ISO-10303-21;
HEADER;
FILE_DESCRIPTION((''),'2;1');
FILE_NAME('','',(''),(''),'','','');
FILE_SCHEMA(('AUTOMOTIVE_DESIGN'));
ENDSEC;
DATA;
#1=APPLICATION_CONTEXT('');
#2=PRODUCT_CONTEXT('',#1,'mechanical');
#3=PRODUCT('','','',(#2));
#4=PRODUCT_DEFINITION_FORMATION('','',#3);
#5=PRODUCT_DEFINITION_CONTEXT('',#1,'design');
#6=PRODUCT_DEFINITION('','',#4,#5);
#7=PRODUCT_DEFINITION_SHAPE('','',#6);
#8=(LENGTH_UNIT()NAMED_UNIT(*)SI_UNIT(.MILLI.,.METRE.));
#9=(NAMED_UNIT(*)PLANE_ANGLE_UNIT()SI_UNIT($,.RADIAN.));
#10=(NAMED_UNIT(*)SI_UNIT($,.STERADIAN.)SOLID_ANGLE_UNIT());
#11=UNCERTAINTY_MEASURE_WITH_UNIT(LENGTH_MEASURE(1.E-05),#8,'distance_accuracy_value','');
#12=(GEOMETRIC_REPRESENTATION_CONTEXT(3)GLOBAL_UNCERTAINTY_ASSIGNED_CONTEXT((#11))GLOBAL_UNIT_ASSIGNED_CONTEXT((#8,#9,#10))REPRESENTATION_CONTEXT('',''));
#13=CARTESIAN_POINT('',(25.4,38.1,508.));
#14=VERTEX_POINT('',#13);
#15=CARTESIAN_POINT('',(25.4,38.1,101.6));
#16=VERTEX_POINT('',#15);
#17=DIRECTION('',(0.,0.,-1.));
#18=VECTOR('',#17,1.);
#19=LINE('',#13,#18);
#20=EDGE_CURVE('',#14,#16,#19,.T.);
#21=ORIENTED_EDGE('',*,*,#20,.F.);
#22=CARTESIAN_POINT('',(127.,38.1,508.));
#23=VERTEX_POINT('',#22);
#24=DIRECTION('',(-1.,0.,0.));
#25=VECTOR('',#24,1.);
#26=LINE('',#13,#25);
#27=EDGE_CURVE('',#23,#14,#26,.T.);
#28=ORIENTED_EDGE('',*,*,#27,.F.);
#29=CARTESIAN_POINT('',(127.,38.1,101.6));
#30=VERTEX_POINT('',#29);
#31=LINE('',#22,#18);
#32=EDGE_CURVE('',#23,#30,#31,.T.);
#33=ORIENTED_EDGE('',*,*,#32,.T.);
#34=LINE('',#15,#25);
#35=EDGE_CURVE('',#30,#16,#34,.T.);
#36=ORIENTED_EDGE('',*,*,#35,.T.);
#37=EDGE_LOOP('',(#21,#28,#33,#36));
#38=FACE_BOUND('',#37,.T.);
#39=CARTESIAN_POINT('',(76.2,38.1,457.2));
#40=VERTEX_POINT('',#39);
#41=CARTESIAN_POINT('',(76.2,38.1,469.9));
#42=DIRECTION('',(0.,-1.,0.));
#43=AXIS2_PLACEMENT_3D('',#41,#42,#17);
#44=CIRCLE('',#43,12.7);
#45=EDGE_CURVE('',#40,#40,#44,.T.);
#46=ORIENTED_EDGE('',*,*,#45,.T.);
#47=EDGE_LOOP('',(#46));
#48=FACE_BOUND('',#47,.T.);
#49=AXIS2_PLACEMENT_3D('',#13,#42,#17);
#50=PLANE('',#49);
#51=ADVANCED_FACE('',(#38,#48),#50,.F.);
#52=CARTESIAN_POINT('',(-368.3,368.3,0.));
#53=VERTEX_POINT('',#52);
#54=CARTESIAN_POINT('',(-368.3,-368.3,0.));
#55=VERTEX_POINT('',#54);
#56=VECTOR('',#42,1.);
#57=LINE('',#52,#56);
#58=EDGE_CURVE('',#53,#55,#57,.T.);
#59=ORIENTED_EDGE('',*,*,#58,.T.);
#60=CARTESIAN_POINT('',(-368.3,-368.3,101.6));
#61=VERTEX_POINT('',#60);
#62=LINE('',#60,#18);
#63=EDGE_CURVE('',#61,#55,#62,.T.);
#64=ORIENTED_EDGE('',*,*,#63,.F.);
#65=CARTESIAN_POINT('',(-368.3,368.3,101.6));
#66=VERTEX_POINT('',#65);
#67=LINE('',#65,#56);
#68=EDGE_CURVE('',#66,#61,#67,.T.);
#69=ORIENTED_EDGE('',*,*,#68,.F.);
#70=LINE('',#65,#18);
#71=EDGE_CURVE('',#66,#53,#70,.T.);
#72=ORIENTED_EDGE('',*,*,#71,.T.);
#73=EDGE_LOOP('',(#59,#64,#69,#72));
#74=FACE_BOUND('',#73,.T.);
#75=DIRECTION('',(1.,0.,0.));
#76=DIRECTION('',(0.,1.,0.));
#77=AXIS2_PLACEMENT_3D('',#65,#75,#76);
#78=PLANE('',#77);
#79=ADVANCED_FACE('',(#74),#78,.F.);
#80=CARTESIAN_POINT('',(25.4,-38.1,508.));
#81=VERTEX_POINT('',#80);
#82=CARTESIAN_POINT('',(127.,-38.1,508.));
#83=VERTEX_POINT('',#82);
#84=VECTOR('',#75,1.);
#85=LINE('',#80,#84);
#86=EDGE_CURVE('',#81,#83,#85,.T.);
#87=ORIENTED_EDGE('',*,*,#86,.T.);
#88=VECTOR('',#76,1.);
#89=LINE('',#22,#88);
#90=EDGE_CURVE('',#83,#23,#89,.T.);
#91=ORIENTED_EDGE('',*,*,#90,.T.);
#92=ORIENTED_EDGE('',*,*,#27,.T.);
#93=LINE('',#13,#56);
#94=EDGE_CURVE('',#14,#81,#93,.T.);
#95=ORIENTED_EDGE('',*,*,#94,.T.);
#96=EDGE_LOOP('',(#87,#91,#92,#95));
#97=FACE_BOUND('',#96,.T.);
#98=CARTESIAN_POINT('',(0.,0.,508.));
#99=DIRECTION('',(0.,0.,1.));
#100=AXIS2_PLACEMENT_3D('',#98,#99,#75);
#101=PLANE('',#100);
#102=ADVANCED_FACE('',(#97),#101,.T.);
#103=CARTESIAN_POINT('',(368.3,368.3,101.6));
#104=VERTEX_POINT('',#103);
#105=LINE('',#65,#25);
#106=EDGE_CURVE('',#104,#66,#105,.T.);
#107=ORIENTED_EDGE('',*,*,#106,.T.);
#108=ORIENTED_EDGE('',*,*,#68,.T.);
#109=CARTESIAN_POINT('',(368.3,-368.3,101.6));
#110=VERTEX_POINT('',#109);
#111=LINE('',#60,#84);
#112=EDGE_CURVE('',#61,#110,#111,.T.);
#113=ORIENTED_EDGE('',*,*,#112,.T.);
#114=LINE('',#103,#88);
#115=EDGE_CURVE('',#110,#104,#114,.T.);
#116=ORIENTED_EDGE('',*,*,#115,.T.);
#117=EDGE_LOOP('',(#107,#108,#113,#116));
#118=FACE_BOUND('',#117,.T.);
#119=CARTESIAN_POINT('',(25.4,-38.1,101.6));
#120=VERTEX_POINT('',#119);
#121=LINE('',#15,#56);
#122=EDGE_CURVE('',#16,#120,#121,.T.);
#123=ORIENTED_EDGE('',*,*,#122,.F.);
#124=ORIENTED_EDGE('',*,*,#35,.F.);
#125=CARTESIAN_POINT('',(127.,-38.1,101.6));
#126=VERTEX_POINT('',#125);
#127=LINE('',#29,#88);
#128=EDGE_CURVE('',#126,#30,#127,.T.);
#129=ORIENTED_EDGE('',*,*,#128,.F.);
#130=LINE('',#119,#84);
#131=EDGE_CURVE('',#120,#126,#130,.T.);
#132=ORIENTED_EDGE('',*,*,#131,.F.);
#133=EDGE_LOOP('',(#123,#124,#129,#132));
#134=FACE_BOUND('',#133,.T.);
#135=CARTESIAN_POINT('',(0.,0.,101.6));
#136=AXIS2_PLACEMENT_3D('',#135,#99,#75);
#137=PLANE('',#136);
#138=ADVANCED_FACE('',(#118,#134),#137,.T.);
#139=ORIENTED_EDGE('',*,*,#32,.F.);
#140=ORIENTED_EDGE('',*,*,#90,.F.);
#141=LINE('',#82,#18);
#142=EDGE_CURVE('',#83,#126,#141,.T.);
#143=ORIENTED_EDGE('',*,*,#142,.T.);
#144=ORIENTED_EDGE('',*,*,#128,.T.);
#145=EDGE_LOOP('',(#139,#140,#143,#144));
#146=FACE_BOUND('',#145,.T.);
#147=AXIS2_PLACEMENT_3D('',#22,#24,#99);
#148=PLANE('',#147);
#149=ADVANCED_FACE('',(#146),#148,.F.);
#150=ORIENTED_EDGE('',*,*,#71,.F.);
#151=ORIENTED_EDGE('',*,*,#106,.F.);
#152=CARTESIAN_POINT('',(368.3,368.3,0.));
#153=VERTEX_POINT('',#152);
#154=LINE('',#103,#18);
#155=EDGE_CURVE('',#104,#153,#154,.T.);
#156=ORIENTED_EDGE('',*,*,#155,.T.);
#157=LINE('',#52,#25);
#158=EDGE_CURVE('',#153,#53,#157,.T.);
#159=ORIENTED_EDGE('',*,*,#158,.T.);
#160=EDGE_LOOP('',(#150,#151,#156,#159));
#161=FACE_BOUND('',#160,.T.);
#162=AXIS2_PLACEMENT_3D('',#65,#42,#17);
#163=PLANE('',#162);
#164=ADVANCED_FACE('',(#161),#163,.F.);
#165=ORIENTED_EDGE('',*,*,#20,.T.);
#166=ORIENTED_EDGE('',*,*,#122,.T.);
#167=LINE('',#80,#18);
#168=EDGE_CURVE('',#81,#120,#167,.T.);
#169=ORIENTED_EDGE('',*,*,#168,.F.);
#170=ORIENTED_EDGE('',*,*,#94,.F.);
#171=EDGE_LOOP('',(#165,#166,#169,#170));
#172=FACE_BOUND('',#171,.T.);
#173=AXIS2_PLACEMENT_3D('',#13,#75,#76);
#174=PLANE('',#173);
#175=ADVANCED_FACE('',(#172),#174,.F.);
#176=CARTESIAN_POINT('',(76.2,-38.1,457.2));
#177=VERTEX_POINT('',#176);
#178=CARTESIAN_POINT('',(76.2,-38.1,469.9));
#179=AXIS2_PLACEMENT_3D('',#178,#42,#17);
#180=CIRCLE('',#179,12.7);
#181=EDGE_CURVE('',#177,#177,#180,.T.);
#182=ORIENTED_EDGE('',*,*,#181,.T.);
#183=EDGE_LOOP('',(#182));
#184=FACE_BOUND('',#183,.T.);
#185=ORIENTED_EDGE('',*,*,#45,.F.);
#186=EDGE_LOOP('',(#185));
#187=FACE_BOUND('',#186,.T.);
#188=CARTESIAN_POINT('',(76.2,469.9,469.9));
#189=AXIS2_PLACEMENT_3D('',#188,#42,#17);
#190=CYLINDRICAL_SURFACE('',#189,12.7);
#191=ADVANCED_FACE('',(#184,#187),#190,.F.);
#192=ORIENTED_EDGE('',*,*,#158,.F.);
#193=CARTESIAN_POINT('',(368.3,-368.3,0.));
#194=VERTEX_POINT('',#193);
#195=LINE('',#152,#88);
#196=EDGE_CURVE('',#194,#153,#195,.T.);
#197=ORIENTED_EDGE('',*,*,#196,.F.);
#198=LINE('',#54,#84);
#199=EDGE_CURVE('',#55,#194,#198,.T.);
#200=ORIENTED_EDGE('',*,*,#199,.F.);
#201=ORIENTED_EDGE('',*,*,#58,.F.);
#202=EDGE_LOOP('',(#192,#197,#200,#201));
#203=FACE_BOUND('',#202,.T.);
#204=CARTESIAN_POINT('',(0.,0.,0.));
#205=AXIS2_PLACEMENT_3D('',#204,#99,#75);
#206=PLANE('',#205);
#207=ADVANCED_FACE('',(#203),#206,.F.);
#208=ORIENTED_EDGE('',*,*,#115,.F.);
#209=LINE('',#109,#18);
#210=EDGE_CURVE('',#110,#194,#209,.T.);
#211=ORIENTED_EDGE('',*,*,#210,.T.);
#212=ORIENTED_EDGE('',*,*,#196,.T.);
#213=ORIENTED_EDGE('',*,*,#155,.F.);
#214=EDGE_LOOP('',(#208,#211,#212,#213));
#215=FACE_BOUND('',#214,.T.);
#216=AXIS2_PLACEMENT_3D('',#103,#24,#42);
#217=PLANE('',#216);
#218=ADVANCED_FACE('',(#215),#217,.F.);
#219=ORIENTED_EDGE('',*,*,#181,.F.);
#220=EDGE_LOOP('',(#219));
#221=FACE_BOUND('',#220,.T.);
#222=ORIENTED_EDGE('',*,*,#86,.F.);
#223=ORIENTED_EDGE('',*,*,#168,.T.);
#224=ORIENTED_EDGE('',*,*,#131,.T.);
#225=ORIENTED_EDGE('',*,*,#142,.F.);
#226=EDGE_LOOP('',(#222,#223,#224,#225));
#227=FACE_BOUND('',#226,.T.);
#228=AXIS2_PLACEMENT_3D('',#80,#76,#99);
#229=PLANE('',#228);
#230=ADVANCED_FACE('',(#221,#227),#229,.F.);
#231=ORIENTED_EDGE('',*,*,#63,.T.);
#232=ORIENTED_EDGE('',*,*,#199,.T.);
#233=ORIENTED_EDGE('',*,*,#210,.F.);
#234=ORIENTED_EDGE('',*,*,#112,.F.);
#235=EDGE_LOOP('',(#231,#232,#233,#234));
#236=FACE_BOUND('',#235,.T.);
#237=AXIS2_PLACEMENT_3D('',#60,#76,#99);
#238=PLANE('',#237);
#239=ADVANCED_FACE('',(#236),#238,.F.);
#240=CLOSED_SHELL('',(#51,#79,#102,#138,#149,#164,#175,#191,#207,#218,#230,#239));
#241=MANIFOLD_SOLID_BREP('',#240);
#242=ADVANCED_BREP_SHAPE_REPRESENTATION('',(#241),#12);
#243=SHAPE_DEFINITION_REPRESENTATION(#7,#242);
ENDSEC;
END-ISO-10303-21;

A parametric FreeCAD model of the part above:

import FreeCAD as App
import Part
import Sketcher
Q = App.Units.Quantity


def add_polygon(sketch, points):
    """Adds a closed chain of lines whose ends are joined by coincident constraints."""
    first, n = sketch.GeometryCount, len(points)
    for a, b in zip(points, points[1:] + points[:1]):
        sketch.addGeometry(Part.LineSegment(App.Vector(*a, 0), App.Vector(*b, 0)), False)
    for i in range(n):
        sketch.addConstraint(Sketcher.Constraint("Coincident", first + i, 2, first + (i + 1) % n, 1))

doc = App.newDocument("Part")
body = doc.addObject("PartDesign::Body", "Body")

sketch1 = body.newObject("Sketcher::SketchObject", "Sketch")
sketch1.AttachmentSupport = (doc.getObject("XY_Plane"), [""])
sketch1.MapMode = "FlatFace"
add_polygon(sketch1, [(-368, 368), (-368, -368), (368, -368), (368, 368)])
sketch1.addConstraint([
    Sketcher.Constraint("Vertical", 0),
    Sketcher.Constraint("Horizontal", 1),
    Sketcher.Constraint("Vertical", 2),
    Sketcher.Constraint("Horizontal", 3),
    Sketcher.Constraint("Symmetric", 0, 2, 2, 2, -1, 1),
    Sketcher.Constraint("Equal", 3, 0),
    Sketcher.Constraint("DistanceX", 1, 1, 1, 2, Q("29 in")),
])
pad1 = body.newObject("PartDesign::Pad", "Pad")
pad1.Profile = sketch1
pad1.Length = Q("4 in")

sketch2 = body.newObject("Sketcher::SketchObject", "Sketch001")
sketch2.AttachmentSupport = (doc.getObject("XY_Plane"), [""])
sketch2.MapMode = "FlatFace"
sketch2.AttachmentOffset = App.Placement(App.Vector(0, 0, 4 * 25.4), App.Rotation())
add_polygon(sketch2, [(25, 38), (25, -38), (127, -38), (127, 38)])
sketch2.addConstraint([
    Sketcher.Constraint("Vertical", 0),
    Sketcher.Constraint("Horizontal", 1),
    Sketcher.Constraint("Vertical", 2),
    Sketcher.Constraint("Horizontal", 3),
    Sketcher.Constraint("DistanceX", 1, 1, 1, 2, Q("4 in")),
    Sketcher.Constraint("DistanceY", 0, 2, 0, 1, Q("3 in")),
    Sketcher.Constraint("DistanceX", -1, 1, 0, 2, Q("1 in")),
    Sketcher.Constraint("DistanceY", 0, 2, -1, 1, Q("1.5 in")),
])
pad2 = body.newObject("PartDesign::Pad", "Pad001")
pad2.Profile = sketch2
pad2.Length = Q("16 in")

sketch3 = body.newObject("Sketcher::SketchObject", "Sketch002")
sketch3.AttachmentSupport = (doc.getObject("XZ_Plane"), [""])
sketch3.MapMode = "FlatFace"
sketch3.AttachmentOffset = App.Placement(App.Vector(0, 0, 1.5 * 25.4), App.Rotation())
sketch3.addGeometry(Part.Circle(App.Vector(76, 470, 0), App.Vector(0, 0, 1), 13), False)
sketch3.addConstraint([
    Sketcher.Constraint("Diameter", 0, Q("1 in")),
    Sketcher.Constraint("DistanceX", -1, 1, 0, 3, Q("3 in")),
    Sketcher.Constraint("DistanceY", -1, 1, 0, 3, Q("18.5 in")),
])
pocket1 = body.newObject("PartDesign::Pocket", "Pocket")
pocket1.Profile = sketch3
pocket1.Length = Q("20 in")

doc.recompute()
